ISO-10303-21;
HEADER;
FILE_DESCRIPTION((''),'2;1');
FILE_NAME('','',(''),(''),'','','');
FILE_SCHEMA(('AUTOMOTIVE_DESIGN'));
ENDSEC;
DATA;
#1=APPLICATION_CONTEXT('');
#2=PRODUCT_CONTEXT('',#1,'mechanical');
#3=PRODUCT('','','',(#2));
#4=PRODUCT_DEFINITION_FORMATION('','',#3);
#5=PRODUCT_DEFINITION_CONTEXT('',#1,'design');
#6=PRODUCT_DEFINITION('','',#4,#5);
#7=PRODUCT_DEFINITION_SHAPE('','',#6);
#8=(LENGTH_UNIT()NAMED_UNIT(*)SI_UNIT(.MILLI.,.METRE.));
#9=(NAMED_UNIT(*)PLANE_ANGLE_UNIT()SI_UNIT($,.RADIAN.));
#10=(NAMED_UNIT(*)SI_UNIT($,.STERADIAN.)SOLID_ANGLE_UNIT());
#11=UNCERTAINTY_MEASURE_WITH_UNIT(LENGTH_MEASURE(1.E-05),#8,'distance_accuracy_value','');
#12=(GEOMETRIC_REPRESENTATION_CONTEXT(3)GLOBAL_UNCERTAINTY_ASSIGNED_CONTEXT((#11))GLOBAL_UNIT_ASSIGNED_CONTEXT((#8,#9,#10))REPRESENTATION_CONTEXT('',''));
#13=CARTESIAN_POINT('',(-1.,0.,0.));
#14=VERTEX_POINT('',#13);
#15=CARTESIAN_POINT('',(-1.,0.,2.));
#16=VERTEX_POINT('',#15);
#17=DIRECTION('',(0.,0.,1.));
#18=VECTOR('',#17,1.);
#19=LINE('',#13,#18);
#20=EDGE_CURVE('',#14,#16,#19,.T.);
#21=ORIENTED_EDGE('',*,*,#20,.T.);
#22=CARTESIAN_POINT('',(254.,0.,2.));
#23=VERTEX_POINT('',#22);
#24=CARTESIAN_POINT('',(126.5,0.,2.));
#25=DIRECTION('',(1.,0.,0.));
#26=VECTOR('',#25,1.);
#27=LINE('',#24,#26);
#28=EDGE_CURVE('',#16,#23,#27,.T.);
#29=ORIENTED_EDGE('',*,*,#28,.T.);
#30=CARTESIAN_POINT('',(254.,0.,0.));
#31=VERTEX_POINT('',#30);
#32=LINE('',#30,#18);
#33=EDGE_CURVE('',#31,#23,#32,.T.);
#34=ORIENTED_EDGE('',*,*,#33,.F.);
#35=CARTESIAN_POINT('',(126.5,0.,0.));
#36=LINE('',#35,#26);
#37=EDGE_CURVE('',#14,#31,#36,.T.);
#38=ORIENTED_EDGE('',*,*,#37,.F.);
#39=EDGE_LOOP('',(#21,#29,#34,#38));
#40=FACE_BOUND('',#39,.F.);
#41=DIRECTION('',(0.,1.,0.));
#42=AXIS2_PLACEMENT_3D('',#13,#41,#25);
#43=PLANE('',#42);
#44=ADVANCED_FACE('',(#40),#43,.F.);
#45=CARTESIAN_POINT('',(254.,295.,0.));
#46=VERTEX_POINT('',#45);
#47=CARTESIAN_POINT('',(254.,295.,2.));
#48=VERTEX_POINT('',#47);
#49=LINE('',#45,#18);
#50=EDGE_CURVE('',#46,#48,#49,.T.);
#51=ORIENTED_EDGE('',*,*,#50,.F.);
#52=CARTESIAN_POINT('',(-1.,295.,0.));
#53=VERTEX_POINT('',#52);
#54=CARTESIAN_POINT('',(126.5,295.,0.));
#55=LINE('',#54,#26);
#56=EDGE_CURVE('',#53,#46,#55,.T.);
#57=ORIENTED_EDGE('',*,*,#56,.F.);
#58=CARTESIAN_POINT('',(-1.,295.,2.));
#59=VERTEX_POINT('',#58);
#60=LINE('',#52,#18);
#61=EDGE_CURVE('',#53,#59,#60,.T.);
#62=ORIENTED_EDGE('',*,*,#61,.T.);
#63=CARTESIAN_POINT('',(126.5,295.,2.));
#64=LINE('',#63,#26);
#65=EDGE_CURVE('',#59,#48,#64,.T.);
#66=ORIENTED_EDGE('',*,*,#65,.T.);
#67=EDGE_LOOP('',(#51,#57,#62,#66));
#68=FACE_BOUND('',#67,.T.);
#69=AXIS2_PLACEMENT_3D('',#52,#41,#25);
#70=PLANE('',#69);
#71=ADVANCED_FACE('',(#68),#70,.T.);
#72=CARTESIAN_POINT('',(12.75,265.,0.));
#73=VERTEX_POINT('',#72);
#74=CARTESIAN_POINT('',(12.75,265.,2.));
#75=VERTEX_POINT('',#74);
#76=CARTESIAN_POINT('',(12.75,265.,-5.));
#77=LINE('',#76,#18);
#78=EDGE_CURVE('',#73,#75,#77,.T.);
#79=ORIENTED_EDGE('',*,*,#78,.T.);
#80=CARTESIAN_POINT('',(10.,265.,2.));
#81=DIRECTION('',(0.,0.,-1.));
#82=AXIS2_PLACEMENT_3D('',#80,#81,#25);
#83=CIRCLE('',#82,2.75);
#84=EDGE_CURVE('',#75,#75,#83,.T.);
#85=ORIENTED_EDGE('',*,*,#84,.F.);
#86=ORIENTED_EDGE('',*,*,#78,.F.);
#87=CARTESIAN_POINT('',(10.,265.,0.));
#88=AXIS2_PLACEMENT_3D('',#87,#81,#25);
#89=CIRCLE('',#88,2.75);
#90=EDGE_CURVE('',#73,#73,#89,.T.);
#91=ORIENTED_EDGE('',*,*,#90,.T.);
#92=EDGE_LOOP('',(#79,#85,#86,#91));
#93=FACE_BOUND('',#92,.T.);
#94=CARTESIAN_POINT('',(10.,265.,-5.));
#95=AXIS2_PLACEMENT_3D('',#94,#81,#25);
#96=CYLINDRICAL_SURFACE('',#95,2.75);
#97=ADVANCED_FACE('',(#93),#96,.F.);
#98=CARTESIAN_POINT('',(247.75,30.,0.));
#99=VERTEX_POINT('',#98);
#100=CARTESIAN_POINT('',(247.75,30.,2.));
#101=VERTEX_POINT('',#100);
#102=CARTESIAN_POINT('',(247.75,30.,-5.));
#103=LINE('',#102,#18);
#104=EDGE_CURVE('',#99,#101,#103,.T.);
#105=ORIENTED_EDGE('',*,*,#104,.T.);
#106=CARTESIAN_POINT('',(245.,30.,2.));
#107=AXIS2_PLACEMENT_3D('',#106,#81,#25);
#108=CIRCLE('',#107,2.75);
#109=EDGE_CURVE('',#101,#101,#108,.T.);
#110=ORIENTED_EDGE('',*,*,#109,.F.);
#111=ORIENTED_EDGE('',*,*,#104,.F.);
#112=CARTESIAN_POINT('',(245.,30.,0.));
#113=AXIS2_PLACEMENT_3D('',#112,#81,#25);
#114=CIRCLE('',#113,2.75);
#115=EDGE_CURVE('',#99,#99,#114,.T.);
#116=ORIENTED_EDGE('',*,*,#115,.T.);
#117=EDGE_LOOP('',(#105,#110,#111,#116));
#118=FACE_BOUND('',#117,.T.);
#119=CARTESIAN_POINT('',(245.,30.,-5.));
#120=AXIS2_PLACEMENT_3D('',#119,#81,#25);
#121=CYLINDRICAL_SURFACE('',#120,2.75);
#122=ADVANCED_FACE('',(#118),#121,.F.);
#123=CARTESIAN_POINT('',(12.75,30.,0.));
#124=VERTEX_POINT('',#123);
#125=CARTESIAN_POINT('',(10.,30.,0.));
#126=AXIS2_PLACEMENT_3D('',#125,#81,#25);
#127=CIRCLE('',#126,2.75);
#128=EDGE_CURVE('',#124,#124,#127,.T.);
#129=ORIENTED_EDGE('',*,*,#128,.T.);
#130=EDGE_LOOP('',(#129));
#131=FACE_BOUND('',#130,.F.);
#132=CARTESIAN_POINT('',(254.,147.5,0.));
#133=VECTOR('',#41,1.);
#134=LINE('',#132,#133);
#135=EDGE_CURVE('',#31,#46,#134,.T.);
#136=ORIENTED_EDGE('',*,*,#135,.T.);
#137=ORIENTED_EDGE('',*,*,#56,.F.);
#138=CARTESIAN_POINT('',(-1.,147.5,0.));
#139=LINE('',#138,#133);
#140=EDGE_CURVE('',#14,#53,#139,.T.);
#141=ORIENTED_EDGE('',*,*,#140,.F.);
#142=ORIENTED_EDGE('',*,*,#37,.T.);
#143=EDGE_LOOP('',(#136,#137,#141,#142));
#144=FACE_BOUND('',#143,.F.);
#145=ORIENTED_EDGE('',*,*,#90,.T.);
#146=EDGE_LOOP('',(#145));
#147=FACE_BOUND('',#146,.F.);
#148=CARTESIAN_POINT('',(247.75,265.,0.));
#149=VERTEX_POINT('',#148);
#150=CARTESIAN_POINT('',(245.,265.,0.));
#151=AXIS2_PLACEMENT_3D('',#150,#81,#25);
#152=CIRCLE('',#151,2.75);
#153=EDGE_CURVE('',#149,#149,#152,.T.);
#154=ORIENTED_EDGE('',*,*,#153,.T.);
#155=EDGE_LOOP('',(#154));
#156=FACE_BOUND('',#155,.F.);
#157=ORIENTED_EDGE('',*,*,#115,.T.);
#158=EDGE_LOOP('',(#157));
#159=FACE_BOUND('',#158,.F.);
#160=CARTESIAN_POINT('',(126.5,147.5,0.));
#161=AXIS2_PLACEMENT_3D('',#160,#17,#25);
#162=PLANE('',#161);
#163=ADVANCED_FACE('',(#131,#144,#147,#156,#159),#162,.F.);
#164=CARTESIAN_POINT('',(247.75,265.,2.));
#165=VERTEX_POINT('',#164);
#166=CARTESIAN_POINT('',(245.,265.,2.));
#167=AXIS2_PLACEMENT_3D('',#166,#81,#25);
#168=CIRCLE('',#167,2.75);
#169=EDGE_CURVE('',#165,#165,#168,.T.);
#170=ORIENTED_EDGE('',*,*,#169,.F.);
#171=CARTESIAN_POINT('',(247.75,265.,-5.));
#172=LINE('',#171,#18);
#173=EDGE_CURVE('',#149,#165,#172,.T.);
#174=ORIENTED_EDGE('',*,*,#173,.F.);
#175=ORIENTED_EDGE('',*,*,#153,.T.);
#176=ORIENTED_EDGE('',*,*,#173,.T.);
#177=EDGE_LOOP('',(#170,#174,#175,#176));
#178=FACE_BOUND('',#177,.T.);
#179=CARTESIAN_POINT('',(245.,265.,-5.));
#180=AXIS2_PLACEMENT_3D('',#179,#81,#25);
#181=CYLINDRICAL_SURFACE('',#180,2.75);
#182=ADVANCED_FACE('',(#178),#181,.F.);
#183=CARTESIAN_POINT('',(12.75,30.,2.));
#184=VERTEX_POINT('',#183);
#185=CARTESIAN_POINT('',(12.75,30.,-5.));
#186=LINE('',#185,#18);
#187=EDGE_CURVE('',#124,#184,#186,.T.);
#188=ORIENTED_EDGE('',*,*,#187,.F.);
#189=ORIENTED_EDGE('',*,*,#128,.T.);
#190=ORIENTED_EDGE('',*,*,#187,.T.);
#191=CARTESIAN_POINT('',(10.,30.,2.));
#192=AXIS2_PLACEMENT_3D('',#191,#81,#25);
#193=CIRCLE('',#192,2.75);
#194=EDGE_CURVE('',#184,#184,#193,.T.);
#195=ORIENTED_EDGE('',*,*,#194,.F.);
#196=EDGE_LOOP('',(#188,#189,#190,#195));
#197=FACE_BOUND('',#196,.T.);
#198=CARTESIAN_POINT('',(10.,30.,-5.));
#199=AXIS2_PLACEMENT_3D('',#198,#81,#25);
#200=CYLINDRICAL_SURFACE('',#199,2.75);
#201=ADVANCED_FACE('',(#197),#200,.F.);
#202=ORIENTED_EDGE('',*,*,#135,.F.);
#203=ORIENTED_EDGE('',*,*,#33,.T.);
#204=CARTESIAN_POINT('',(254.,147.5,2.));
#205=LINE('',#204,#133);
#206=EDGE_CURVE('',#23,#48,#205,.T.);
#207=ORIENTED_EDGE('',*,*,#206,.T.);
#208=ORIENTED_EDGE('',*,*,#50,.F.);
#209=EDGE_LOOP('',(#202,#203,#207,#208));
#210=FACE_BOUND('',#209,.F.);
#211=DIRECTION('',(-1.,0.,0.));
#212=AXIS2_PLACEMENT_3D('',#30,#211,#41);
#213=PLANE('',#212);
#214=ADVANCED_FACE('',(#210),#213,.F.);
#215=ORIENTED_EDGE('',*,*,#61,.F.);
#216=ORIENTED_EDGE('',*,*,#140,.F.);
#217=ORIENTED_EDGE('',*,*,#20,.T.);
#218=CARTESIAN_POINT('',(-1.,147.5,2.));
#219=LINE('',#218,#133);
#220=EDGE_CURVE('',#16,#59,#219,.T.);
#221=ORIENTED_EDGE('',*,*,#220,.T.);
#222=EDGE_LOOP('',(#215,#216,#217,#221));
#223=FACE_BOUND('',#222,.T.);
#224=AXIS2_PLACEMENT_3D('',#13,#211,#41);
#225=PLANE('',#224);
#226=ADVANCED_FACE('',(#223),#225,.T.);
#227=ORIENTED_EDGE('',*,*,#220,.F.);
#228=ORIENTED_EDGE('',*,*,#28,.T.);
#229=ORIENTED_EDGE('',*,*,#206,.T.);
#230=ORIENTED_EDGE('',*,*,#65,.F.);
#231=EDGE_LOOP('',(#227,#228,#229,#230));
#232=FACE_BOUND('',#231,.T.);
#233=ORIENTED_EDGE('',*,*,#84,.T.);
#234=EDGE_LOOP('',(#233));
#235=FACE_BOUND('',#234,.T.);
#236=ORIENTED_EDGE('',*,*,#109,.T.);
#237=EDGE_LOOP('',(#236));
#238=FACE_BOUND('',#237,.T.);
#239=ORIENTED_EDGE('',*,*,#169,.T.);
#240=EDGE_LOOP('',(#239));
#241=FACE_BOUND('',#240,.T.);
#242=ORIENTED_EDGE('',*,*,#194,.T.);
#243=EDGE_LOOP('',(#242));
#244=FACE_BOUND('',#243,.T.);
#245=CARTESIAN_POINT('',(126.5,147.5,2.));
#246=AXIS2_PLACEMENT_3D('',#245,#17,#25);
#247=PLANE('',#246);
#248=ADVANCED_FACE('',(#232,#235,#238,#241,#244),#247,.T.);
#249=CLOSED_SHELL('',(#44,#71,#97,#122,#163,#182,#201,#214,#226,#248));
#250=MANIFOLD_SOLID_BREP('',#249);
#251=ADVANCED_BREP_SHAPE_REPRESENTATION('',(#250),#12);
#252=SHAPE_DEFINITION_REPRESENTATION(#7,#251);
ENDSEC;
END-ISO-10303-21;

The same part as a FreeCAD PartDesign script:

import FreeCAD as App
import Part
import Sketcher


def add_polygon(sketch, points):
    """Adds a closed chain of lines whose ends are joined by coincident constraints."""
    first, n = sketch.GeometryCount, len(points)
    for a, b in zip(points, points[1:] + points[:1]):
        sketch.addGeometry(Part.LineSegment(App.Vector(*a, 0), App.Vector(*b, 0)), False)
    for i in range(n):
        sketch.addConstraint(Sketcher.Constraint("Coincident", first + i, 2, first + (i + 1) % n, 1))

doc = App.newDocument("Part")
params = doc.addObject("Spreadsheet::Sheet", "Params")
for row, (alias, value) in enumerate([
    ("sketch1_diameter", "5.5 mm"),
    ("pad1_length", "10 mm"),
    ("sketch2_diameter", "5.5 mm"),
    ("pad2_length", "10 mm"),
    ("sketch3_diameter", "5.5 mm"),
    ("pad3_length", "10 mm"),
    ("sketch4_diameter", "5.5 mm"),
    ("pad4_length", "10 mm"),
    ("sketch5_width", "255 mm"),
    ("sketch5_height", "295 mm"),
    ("pad5_length", "2 mm"),
], start=1):
    params.set(f"A{row}", alias)
    params.set(f"B{row}", "=" + value)
    params.setAlias(f"B{row}", alias)

body = doc.addObject("PartDesign::Body", "Body")

sketch1 = body.newObject("Sketcher::SketchObject", "Sketch")
sketch1.AttachmentSupport = (doc.getObject("XY_Plane"), [""])
sketch1.MapMode = "FlatFace"
sketch1.AttachmentOffset = App.Placement(App.Vector(0, 0, -5), App.Rotation())
sketch1.addGeometry(Part.Circle(App.Vector(245, 265, 0), App.Vector(0, 0, 1), 2.8), False)
sketch1.addConstraint([
    Sketcher.Constraint("Diameter", 0, 5.5),
    Sketcher.Constraint("DistanceX", -1, 1, 0, 3, 245.0),
    Sketcher.Constraint("DistanceY", -1, 1, 0, 3, 265.0),
])
sketch1.setExpression("Constraints[0]", "Params.sketch1_diameter")
pad1 = body.newObject("PartDesign::Pad", "Pad")
pad1.Profile = sketch1
pad1.setExpression("Length", "Params.pad1_length")
body2 = doc.addObject("PartDesign::Body", "Body001")

sketch2 = body2.newObject("Sketcher::SketchObject", "Sketch001")
sketch2.AttachmentSupport = (doc.getObject("XY_Plane001"), [""])
sketch2.MapMode = "FlatFace"
sketch2.AttachmentOffset = App.Placement(App.Vector(0, 0, -5), App.Rotation())
sketch2.addGeometry(Part.Circle(App.Vector(245, 30, 0), App.Vector(0, 0, 1), 2.8), False)
sketch2.addConstraint([
    Sketcher.Constraint("Diameter", 0, 5.5),
    Sketcher.Constraint("DistanceX", -1, 1, 0, 3, 245.0),
    Sketcher.Constraint("DistanceY", -1, 1, 0, 3, 30.0),
])
sketch2.setExpression("Constraints[0]", "Params.sketch2_diameter")
pad2 = body2.newObject("PartDesign::Pad", "Pad001")
pad2.Profile = sketch2
pad2.setExpression("Length", "Params.pad2_length")
body3 = doc.addObject("PartDesign::Body", "Body002")

sketch3 = body3.newObject("Sketcher::SketchObject", "Sketch002")
sketch3.AttachmentSupport = (doc.getObject("XY_Plane002"), [""])
sketch3.MapMode = "FlatFace"
sketch3.AttachmentOffset = App.Placement(App.Vector(0, 0, -5), App.Rotation())
sketch3.addGeometry(Part.Circle(App.Vector(10, 265, 0), App.Vector(0, 0, 1), 2.8), False)
sketch3.addConstraint([
    Sketcher.Constraint("Diameter", 0, 5.5),
    Sketcher.Constraint("DistanceX", -1, 1, 0, 3, 10.0),
    Sketcher.Constraint("DistanceY", -1, 1, 0, 3, 265.0),
])
sketch3.setExpression("Constraints[0]", "Params.sketch3_diameter")
pad3 = body3.newObject("PartDesign::Pad", "Pad002")
pad3.Profile = sketch3
pad3.setExpression("Length", "Params.pad3_length")
body4 = doc.addObject("PartDesign::Body", "Body003")

sketch4 = body4.newObject("Sketcher::SketchObject", "Sketch003")
sketch4.AttachmentSupport = (doc.getObject("XY_Plane003"), [""])
sketch4.MapMode = "FlatFace"
sketch4.AttachmentOffset = App.Placement(App.Vector(0, 0, -5), App.Rotation())
sketch4.addGeometry(Part.Circle(App.Vector(10, 30, 0), App.Vector(0, 0, 1), 2.8), False)
sketch4.addConstraint([
    Sketcher.Constraint("Diameter", 0, 5.5),
    Sketcher.Constraint("DistanceX", -1, 1, 0, 3, 10.0),
    Sketcher.Constraint("DistanceY", -1, 1, 0, 3, 30.0),
])
sketch4.setExpression("Constraints[0]", "Params.sketch4_diameter")
pad4 = body4.newObject("PartDesign::Pad", "Pad003")
pad4.Profile = sketch4
pad4.setExpression("Length", "Params.pad4_length")
body5 = doc.addObject("PartDesign::Body", "Body004")

sketch5 = body5.newObject("Sketcher::SketchObject", "Sketch004")
sketch5.AttachmentSupport = (doc.getObject("XY_Plane004"), [""])
sketch5.MapMode = "FlatFace"
add_polygon(sketch5, [(-1, 295), (-1, 0), (254, 0), (254, 295)])
sketch5.addConstraint([
    Sketcher.Constraint("Vertical", 0),
    Sketcher.Constraint("Horizontal", 1),
    Sketcher.Constraint("Vertical", 2),
    Sketcher.Constraint("Horizontal", 3),
    Sketcher.Constraint("PointOnObject", 0, 2, -1),
    Sketcher.Constraint("DistanceX", 1, 1, 1, 2, 255.0),
    Sketcher.Constraint("DistanceY", 0, 2, 0, 1, 295.0),
    Sketcher.Constraint("DistanceX", 0, 2, -1, 1, 1.0),
])
sketch5.setExpression("Constraints[9]", "Params.sketch5_width")
sketch5.setExpression("Constraints[10]", "Params.sketch5_height")
pad5 = body5.newObject("PartDesign::Pad", "Pad004")
pad5.Profile = sketch5
pad5.setExpression("Length", "Params.pad5_length")
doc.recompute()

boolean = body5.newObject("PartDesign::Boolean", "Boolean")
boolean.Type = "Cut"
boolean.addObjects([body4])
doc.recompute()

boolean2 = body5.newObject("PartDesign::Boolean", "Boolean001")
boolean2.Type = "Cut"
boolean2.addObjects([body3])
doc.recompute()

boolean3 = body5.newObject("PartDesign::Boolean", "Boolean002")
boolean3.Type = "Cut"
boolean3.addObjects([body2])
doc.recompute()

boolean4 = body5.newObject("PartDesign::Boolean", "Boolean003")
boolean4.Type = "Cut"
boolean4.addObjects([body])

doc.recompute()
